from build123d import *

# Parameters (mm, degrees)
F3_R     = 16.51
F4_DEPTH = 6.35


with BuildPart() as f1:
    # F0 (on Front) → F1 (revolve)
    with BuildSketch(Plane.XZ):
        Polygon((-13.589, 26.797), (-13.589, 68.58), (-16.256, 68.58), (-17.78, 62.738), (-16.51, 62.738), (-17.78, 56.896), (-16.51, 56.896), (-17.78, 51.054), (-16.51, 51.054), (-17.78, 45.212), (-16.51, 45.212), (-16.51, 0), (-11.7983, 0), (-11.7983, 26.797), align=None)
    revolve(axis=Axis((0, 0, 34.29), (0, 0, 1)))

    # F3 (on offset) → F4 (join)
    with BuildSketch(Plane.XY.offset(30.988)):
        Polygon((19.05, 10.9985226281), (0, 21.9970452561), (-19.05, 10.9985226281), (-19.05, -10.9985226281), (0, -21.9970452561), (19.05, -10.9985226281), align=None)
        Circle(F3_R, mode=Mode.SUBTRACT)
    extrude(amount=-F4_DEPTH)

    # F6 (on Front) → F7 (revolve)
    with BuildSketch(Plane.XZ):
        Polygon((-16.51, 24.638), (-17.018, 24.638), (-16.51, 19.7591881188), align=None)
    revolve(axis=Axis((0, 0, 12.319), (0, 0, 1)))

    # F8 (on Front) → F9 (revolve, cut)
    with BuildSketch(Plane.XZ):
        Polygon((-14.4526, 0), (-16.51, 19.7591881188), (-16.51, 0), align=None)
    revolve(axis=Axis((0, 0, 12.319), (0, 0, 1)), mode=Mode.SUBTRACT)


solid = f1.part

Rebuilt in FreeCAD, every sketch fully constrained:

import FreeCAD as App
import Part
import Sketcher
Q = App.Units.Quantity


def add_polygon(sketch, points):
    """Adds a closed chain of lines whose ends are joined by coincident constraints."""
    first, n = sketch.GeometryCount, len(points)
    for a, b in zip(points, points[1:] + points[:1]):
        sketch.addGeometry(Part.LineSegment(App.Vector(*a, 0), App.Vector(*b, 0)), False)
    for i in range(n):
        sketch.addConstraint(Sketcher.Constraint("Coincident", first + i, 2, first + (i + 1) % n, 1))

doc = App.newDocument("Part")
body = doc.addObject("PartDesign::Body", "Body")

# Sketch on XZ plane
sketch1 = doc.addObject("Sketcher::SketchObject", "Sketch")
body.addObject(sketch1)
sketch1.AttachmentSupport = (doc.XZ_Plane, [""])
sketch1.MapMode = "FlatFace"
add_polygon(sketch1, [(-13.6, 26.8), (-13.6, 68.6), (-16.3, 68.6), (-17.8, 62.7), (-16.5, 62.7), (-17.8, 56.9), (-16.5, 56.9), (-17.8, 51.1), (-16.5, 51.1), (-17.8, 45.2), (-16.5, 45.2), (-16.5, 0), (-11.8, 0), (-11.8, 26.8)])  # lines 0-13
sketch1.addConstraint([
    Sketcher.Constraint("Vertical", 0),
    Sketcher.Constraint("Horizontal", 1),
    Sketcher.Constraint("Horizontal", 3),
    Sketcher.Constraint("Horizontal", 5),
    Sketcher.Constraint("Horizontal", 7),
    Sketcher.Constraint("Horizontal", 9),
    Sketcher.Constraint("Vertical", 10),
    Sketcher.Constraint("Horizontal", 11),
    Sketcher.Constraint("Vertical", 12),
    Sketcher.Constraint("Horizontal", 13),
    Sketcher.Constraint("PointOnObject", 10, 2, -1),
    Sketcher.Constraint("Parallel", 4, 6),
    Sketcher.Constraint("Parallel", 6, 8),
    Sketcher.Constraint("Vertical", 2, 2, 4, 2),
    Sketcher.Constraint("Vertical", 3, 2, 5, 2),
    Sketcher.Constraint("Vertical", 4, 2, 6, 2),
    Sketcher.Constraint("Vertical", 5, 2, 7, 2),
    Sketcher.Constraint("Vertical", 6, 2, 8, 2),
    Sketcher.Constraint("Vertical", 7, 2, 9, 2),
    Sketcher.Constraint("DistanceX", 3, 1, 3, 2, Q("0.05 in")),
    Sketcher.Constraint("DistanceY", 10, 2, 10, 1, Q("1.78 in")),
    Sketcher.Constraint("DistanceY", -1, 1, 0, 2, Q("2.7 in")),
    Sketcher.Constraint("DistanceX", 2, 2, -1, 1, Q("0.7 in")),
    Sketcher.Constraint("DistanceX", 1, 2, 1, 1, Q("0.105 in")),
    Sketcher.Constraint("DistanceY", 0, 1, 0, 2, Q("1.645 in")),
    Sketcher.Constraint("DistanceX", 1, 2, -1, 1, Q("0.64 in")),
    Sketcher.Constraint("DistanceY", -1, 1, 2, 2, Q("2.47 in")),
    Sketcher.Constraint("DistanceX", 11, 1, 11, 2, Q("0.1855 in")),
])
revolution = doc.addObject("PartDesign::Revolution", "Revolution")
body.addObject(revolution)
revolution.Profile = sketch1
revolution.ReferenceAxis = (sketch1, ["V_Axis"])
revolution.Angle = 360

# Sketch on XY plane
sketch2 = doc.addObject("Sketcher::SketchObject", "Sketch001")
body.addObject(sketch2)
sketch2.AttachmentSupport = (doc.XY_Plane, [""])
sketch2.MapMode = "FlatFace"
sketch2.AttachmentOffset = App.Placement(App.Vector(0, 0, 1.22 * 25.4), App.Rotation())
add_polygon(sketch2, [(19, 11), (0, 22), (-19, 11), (-19, -11), (0, -22), (19, -11)])  # lines 0-5
sketch2.addGeometry(Part.Circle(App.Vector(0, 0, 0), App.Vector(0, 0, 1), 17), False)  # 6
sketch2.addConstraint([
    Sketcher.Constraint("Vertical", 2),
    Sketcher.Constraint("Vertical", 5),
    Sketcher.Constraint("Coincident", 6, 3, -1, 1),
    Sketcher.Constraint("Symmetric", 0, 2, 3, 2, -1, 1),
    Sketcher.Constraint("Symmetric", 1, 2, 4, 2, -1, 1),
    Sketcher.Constraint("PointOnObject", 0, 2, -2),
    Sketcher.Constraint("Parallel", 0, 3),
    Sketcher.Constraint("Horizontal", 2, 2, 4, 2),
    Sketcher.Constraint("Diameter", 6, Q("1.3 in")),
    Sketcher.Constraint("Angle", 0, Q("150 deg")),
    Sketcher.Constraint("DistanceX", 2, 2, 4, 2, Q("1.5 in")),
    Sketcher.Constraint("DistanceY", 2, 2, 2, 1, Q("21.997045 mm")),
])
pad1 = doc.addObject("PartDesign::Pad", "Pad")
body.addObject(pad1)
pad1.Profile = sketch2
pad1.Length = Q("0.25 in")
pad1.Reversed = True

# Sketch on XZ plane
sketch3 = doc.addObject("Sketcher::SketchObject", "Sketch002")
body.addObject(sketch3)
sketch3.AttachmentSupport = (doc.XZ_Plane, [""])
sketch3.MapMode = "FlatFace"
add_polygon(sketch3, [(-16.5, 24.6), (-17, 24.6), (-16.5, 19.8)])  # lines 0-2
sketch3.addConstraint([
    Sketcher.Constraint("Horizontal", 0),
    Sketcher.Constraint("Vertical", 2),
    Sketcher.Constraint("DistanceX", 0, 2, 0, 1, Q("0.02 in")),
    Sketcher.Constraint("DistanceX", 0, 2, -1, 1, Q("0.67 in")),
    Sketcher.Constraint("DistanceY", -1, 1, 0, 2, Q("0.97 in")),
    Sketcher.Constraint("DistanceY", 2, 1, 2, 2, Q("4.878812 mm")),
])
revolution2 = doc.addObject("PartDesign::Revolution", "Revolution001")
body.addObject(revolution2)
revolution2.Profile = sketch3
revolution2.ReferenceAxis = (sketch3, ["V_Axis"])
revolution2.Angle = 360

# Sketch on XZ plane
sketch4 = doc.addObject("Sketcher::SketchObject", "Sketch003")
body.addObject(sketch4)
sketch4.AttachmentSupport = (doc.XZ_Plane, [""])
sketch4.MapMode = "FlatFace"
add_polygon(sketch4, [(-14.5, 0), (-16.5, 19.8), (-16.5, 0)])  # lines 0-2
sketch4.addConstraint([
    Sketcher.Constraint("Vertical", 1),
    Sketcher.Constraint("Horizontal", 2),
    Sketcher.Constraint("PointOnObject", 1, 2, -1),
    Sketcher.Constraint("DistanceX", 2, 1, 2, 2, Q("0.081 in")),
    Sketcher.Constraint("DistanceX", 0, 2, -1, 1, Q("0.65 in")),
    Sketcher.Constraint("DistanceY", 1, 2, 1, 1, Q("19.759188 mm")),
])
groove = doc.addObject("PartDesign::Groove", "Groove")
body.addObject(groove)
groove.Profile = sketch4
groove.ReferenceAxis = (sketch4, ["V_Axis"])
groove.Angle = 360

doc.recompute()
